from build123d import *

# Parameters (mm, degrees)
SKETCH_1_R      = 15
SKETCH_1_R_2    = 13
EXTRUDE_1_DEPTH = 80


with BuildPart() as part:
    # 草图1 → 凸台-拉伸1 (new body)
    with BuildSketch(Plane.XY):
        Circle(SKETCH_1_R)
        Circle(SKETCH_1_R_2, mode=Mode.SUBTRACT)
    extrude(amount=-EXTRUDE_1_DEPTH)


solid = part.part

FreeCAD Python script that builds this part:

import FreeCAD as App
import Part
import Sketcher
Q = App.Units.Quantity

doc = App.newDocument("Part")
body = doc.addObject("PartDesign::Body", "Body")

# Sketch on XY plane
sketch1 = doc.addObject("Sketcher::SketchObject", "Sketch")
body.addObject(sketch1)
sketch1.AttachmentSupport = (doc.XY_Plane, [""])
sketch1.MapMode = "FlatFace"
sketch1.addGeometry([
    Part.Circle(App.Vector(0, 0, 0), App.Vector(0, 0, 1), 15),
    Part.Circle(App.Vector(0, 0, 0), App.Vector(0, 0, 1), 13),
], False)
sketch1.addConstraint([
    Sketcher.Constraint("Coincident", 0, 3, -1, 1),
    Sketcher.Constraint("Coincident", 1, 3, -1, 1),
    Sketcher.Constraint("Diameter", 0, Q("30 mm")),
    Sketcher.Constraint("Diameter", 1, Q("26 mm")),
])
pad1 = doc.addObject("PartDesign::Pad", "Pad")
body.addObject(pad1)
pad1.Profile = sketch1
pad1.Length = 80
pad1.Reversed = True

doc.recompute()
